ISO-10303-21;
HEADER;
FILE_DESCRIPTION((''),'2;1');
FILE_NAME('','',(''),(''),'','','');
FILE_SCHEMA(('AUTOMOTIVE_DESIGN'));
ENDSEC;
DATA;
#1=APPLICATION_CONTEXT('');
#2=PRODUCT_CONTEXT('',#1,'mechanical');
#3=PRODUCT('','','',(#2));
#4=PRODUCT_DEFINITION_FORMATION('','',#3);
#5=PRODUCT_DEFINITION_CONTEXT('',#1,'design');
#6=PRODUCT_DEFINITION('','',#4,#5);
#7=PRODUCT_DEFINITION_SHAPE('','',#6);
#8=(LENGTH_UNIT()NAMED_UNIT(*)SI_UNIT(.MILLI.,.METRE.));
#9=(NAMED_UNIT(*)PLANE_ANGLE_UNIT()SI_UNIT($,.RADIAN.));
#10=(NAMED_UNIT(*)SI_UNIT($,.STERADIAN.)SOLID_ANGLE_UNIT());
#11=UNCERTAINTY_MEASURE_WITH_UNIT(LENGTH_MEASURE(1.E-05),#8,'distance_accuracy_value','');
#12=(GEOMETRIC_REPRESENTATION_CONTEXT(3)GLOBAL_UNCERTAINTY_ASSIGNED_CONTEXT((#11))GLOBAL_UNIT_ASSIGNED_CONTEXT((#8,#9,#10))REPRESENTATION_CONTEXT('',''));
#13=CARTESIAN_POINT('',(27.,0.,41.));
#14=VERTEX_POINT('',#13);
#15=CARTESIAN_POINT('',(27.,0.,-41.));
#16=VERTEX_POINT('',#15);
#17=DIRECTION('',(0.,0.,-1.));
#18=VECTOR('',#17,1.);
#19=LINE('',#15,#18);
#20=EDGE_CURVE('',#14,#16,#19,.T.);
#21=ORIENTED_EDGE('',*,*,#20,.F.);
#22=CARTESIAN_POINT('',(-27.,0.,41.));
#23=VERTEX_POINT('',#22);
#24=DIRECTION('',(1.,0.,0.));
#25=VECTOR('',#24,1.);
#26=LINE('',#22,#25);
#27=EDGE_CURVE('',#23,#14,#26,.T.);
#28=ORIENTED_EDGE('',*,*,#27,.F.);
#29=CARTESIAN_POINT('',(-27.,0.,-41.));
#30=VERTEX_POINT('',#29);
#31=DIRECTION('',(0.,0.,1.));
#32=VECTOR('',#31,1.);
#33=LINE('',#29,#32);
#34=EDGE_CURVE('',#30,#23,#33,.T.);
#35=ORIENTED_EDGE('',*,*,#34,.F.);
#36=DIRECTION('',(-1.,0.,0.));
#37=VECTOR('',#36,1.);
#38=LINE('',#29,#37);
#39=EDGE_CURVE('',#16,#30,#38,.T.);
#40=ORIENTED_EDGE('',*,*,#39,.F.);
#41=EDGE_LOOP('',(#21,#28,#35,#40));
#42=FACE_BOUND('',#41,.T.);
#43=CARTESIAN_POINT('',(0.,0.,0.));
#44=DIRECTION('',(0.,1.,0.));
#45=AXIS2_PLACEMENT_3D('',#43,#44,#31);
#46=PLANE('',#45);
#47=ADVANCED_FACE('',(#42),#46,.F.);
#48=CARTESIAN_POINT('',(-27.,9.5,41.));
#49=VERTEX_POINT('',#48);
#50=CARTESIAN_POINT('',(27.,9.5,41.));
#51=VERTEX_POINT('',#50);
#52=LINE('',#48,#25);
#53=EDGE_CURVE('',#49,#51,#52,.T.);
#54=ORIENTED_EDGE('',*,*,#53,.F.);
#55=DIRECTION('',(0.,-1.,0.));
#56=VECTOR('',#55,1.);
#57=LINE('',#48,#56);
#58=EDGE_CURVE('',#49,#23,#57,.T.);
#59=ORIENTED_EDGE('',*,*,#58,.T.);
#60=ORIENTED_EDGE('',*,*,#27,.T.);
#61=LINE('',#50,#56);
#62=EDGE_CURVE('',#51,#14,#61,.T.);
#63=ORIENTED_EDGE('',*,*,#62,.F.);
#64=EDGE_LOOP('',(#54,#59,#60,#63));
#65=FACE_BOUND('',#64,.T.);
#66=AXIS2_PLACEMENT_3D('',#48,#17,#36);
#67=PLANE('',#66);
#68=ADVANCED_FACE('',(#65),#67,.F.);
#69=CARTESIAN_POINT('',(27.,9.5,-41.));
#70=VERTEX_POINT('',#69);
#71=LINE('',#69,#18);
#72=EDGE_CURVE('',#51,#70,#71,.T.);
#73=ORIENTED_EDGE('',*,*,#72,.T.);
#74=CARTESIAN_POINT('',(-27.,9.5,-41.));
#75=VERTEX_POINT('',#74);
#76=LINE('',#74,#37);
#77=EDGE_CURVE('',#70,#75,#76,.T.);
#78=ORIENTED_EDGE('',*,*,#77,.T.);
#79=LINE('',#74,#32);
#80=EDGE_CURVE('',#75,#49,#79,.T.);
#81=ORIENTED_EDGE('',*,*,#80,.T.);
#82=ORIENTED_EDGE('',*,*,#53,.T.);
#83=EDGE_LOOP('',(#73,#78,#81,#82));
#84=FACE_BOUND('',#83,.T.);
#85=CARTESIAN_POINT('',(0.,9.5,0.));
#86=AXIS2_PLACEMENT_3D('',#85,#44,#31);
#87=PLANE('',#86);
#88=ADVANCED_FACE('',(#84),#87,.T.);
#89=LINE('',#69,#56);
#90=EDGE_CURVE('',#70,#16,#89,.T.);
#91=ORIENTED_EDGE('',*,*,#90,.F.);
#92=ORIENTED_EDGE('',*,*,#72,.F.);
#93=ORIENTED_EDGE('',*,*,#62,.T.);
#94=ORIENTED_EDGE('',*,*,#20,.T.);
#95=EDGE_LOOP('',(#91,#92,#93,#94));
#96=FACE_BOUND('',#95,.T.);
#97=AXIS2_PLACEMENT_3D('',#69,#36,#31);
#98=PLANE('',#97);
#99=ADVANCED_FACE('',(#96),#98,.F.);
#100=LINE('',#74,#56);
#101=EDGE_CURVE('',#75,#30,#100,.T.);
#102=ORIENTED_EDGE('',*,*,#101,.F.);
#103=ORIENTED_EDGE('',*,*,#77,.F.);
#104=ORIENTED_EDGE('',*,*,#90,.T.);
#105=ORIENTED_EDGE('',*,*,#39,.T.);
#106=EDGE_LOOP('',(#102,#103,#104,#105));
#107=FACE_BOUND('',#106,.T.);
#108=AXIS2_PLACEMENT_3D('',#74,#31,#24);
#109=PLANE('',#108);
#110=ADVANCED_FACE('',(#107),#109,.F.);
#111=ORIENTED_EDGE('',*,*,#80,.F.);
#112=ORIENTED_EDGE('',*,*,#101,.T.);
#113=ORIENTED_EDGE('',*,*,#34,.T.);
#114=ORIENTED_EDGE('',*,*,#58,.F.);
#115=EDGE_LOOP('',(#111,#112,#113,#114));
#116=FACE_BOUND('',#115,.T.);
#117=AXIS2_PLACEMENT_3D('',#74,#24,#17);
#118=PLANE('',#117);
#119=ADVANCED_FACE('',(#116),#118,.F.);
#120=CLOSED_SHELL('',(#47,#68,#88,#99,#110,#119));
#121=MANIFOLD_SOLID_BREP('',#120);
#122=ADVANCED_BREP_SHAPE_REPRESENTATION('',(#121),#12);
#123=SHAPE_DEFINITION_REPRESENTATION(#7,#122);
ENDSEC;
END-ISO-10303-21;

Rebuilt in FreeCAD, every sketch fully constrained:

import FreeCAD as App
import Part
import Sketcher
Q = App.Units.Quantity


def add_polygon(sketch, points):
    """Adds a closed chain of lines whose ends are joined by coincident constraints."""
    first, n = sketch.GeometryCount, len(points)
    for a, b in zip(points, points[1:] + points[:1]):
        sketch.addGeometry(Part.LineSegment(App.Vector(*a, 0), App.Vector(*b, 0)), False)
    for i in range(n):
        sketch.addConstraint(Sketcher.Constraint("Coincident", first + i, 2, first + (i + 1) % n, 1))

doc = App.newDocument("Part")
params = doc.addObject("Spreadsheet::Sheet", "Params")
for row, (alias, value) in enumerate([
    ("sketch1_width", "54 mm"),
    ("sketch1_height", "82 mm"),
    ("pad1_length", "9.5 mm"),
], start=1):
    params.set(f"A{row}", alias)
    params.set(f"B{row}", "=" + value)
    params.setAlias(f"B{row}", alias)

body = doc.addObject("PartDesign::Body", "Body")

# Sketch on XZ plane
sketch1 = doc.addObject("Sketcher::SketchObject", "Sketch")
body.addObject(sketch1)
sketch1.AttachmentSupport = (doc.XZ_Plane, [""])
sketch1.MapMode = "FlatFace"
add_polygon(sketch1, [(-27, -41), (-27, 41), (27, 41), (27, -41)])  # lines 0-3
sketch1.addConstraint([
    Sketcher.Constraint("Vertical", 0),
    Sketcher.Constraint("Horizontal", 1),
    Sketcher.Constraint("Vertical", 2),
    Sketcher.Constraint("Horizontal", 3),
    Sketcher.Constraint("Symmetric", 0, 2, 2, 2, -1, 1),
    Sketcher.Constraint("DistanceX", 1, 1, 1, 2, Q("54 mm")),
    Sketcher.Constraint("DistanceY", 0, 1, 0, 2, Q("82 mm")),
])
sketch1.setExpression("Constraints[9]", "Params.sketch1_width")
sketch1.setExpression("Constraints[10]", "Params.sketch1_height")
pad1 = doc.addObject("PartDesign::Pad", "Pad")
body.addObject(pad1)
pad1.Profile = sketch1
pad1.setExpression("Length", "Params.pad1_length")
pad1.Reversed = True

doc.recompute()
